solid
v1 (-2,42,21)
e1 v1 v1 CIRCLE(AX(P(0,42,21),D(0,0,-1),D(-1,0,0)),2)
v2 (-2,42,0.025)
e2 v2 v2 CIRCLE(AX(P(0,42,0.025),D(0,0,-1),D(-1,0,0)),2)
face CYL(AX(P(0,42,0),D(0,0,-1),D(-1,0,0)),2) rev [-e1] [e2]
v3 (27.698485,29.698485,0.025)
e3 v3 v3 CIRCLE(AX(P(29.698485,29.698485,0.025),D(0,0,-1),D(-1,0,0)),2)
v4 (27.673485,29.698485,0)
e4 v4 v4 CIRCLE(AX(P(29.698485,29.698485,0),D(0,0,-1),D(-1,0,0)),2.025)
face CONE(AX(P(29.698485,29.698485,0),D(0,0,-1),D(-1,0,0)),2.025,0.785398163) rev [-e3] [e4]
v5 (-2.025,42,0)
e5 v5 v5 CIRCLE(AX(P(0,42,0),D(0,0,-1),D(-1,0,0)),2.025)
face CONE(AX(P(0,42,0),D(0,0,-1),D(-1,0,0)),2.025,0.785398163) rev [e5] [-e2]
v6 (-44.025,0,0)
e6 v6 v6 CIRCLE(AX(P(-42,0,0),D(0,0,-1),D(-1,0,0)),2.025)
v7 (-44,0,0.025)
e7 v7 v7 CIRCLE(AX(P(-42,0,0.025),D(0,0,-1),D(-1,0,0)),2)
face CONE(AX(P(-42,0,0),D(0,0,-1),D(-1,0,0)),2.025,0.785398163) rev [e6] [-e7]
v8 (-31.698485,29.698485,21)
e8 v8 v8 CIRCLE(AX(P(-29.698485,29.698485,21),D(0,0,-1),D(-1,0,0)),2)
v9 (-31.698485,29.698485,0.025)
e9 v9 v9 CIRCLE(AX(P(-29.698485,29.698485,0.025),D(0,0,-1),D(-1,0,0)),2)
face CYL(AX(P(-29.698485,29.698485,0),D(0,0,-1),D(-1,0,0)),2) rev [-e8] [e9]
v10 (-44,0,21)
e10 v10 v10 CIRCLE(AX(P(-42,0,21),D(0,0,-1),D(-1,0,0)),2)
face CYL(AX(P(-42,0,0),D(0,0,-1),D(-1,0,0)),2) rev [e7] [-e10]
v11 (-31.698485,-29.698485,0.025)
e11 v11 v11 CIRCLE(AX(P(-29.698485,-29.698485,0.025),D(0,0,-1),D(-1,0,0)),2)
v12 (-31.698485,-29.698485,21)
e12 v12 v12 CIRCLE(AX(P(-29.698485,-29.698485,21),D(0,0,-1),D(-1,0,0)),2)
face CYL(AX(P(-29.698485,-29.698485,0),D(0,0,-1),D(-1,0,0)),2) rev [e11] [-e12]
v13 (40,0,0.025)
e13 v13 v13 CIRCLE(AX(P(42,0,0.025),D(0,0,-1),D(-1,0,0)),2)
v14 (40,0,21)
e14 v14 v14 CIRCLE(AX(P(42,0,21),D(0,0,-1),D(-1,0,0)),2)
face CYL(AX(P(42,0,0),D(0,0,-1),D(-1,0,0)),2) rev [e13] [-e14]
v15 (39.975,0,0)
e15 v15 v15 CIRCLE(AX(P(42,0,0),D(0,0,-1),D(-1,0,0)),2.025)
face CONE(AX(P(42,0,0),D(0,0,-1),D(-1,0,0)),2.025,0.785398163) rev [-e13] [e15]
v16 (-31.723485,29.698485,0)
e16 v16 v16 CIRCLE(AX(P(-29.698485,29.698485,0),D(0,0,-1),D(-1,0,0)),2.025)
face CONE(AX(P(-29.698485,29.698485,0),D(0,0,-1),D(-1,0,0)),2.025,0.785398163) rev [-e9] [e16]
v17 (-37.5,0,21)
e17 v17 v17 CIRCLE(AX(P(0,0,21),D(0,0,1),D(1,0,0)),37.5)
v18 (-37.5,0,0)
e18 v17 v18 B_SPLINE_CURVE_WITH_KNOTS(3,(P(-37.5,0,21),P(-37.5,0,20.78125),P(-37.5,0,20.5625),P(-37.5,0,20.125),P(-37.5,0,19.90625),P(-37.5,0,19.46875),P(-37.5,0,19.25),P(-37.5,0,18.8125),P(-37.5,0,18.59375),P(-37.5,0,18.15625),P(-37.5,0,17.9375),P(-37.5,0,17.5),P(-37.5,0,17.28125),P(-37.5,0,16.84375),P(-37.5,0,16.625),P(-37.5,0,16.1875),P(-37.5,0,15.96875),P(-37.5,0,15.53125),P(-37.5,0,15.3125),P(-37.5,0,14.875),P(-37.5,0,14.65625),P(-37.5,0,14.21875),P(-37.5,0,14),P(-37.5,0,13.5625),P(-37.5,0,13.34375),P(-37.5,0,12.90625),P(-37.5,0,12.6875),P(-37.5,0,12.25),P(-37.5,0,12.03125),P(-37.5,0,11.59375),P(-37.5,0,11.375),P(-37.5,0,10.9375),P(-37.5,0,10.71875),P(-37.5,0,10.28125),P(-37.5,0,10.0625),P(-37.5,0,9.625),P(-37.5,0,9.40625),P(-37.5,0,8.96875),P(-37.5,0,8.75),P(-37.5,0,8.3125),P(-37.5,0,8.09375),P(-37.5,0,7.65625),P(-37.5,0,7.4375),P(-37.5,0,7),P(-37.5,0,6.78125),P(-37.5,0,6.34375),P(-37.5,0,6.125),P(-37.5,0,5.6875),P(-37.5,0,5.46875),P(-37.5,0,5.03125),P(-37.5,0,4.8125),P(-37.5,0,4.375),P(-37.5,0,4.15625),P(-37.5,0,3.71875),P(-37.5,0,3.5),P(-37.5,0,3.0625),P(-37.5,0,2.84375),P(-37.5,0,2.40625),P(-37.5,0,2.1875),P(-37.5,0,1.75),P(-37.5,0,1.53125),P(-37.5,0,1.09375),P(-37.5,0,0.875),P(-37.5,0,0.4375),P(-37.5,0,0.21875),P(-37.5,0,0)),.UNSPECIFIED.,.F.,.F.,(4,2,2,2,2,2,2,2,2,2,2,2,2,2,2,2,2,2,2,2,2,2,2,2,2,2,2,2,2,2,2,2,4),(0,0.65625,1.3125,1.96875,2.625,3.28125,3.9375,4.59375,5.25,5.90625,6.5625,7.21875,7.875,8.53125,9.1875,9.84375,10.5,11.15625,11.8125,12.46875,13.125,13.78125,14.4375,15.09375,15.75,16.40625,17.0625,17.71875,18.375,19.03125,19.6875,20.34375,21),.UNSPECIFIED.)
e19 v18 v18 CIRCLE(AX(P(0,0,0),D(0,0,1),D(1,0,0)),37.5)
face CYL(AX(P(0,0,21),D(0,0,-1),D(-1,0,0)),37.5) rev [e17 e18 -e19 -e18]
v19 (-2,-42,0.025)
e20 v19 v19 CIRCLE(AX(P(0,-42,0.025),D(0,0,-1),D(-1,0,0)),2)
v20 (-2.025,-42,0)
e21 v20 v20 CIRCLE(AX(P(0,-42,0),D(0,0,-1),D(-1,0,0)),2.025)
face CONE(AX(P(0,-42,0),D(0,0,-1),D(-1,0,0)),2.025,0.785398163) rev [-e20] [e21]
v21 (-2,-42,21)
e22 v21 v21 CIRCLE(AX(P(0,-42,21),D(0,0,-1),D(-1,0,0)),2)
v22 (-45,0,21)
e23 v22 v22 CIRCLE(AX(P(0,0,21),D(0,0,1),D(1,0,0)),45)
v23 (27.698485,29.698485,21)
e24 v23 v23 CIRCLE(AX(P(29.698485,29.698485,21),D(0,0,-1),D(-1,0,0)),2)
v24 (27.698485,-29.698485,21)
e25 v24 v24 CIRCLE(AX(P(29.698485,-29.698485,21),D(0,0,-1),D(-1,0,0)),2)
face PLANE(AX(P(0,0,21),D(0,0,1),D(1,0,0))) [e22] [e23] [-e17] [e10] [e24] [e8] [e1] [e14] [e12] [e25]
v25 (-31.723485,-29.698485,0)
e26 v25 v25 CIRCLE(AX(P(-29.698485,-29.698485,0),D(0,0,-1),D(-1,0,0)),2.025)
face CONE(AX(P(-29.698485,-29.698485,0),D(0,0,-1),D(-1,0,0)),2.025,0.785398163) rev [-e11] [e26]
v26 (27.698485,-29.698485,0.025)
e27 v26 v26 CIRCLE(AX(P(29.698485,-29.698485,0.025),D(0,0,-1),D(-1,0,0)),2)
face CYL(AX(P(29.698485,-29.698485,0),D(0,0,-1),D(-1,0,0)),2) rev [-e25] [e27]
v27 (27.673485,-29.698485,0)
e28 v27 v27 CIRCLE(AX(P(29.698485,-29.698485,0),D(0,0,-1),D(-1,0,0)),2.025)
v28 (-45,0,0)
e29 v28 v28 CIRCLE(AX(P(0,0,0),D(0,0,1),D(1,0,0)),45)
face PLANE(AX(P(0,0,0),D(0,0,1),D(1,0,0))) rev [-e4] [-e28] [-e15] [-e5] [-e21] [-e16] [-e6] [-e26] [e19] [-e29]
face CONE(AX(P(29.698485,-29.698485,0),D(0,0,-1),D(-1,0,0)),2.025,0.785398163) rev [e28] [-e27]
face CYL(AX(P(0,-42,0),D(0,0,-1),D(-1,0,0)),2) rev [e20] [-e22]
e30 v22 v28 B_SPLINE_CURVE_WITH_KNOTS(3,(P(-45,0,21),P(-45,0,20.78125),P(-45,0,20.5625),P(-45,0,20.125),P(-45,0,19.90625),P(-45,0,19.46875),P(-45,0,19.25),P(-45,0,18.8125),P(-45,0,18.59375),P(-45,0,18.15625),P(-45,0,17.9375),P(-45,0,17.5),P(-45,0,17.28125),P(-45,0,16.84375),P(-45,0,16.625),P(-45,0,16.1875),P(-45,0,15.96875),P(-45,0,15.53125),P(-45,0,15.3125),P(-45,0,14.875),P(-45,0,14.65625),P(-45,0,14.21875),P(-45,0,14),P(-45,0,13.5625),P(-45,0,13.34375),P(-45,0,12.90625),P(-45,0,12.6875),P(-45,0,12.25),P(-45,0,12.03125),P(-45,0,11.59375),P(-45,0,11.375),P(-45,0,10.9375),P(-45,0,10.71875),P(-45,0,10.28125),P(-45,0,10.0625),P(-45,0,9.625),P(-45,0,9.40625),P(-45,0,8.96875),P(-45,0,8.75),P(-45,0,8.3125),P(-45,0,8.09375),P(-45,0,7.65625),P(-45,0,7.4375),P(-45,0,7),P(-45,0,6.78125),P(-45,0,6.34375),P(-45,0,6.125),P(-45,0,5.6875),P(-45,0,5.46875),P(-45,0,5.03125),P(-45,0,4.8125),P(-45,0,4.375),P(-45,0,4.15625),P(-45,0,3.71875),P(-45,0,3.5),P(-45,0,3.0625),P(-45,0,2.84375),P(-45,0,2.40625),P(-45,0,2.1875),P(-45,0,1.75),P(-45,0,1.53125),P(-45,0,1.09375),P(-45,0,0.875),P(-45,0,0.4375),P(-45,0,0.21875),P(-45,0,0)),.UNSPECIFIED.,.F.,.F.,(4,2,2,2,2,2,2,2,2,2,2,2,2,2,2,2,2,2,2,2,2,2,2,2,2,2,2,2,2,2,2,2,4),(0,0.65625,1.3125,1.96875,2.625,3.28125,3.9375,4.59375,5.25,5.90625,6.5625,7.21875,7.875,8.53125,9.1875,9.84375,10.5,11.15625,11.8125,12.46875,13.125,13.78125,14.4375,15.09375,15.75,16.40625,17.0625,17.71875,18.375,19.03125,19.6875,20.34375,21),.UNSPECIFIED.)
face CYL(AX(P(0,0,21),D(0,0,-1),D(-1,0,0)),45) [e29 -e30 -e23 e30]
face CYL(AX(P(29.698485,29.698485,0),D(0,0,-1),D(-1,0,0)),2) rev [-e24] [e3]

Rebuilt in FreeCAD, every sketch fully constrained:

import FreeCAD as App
import Part
import Sketcher

V = App.Vector
Q = App.Units.Quantity

doc = App.newDocument("Part")
params = doc.addObject("Spreadsheet::Sheet", "Params")
for row, (alias, value) in enumerate([
    ("sketch1_diameter", "90 mm"),
    ("sketch1_diameter2", "75 mm"),
    ("pad1_length", "21 mm"),
    ("sketch2_diameter", "4 mm"),
    ("hole_diameter", "4 mm"),
    ("hole_csink_diameter", "4.05 mm"),
], start=1):
    params.set(f"A{row}", alias)
    params.set(f"B{row}", "=" + value)
    params.setAlias(f"B{row}", alias)

body = doc.addObject("PartDesign::Body", "Body")

# Sketch on XY plane
sketch1 = doc.addObject("Sketcher::SketchObject", "Sketch")
body.addObject(sketch1)
sketch1.AttachmentSupport = (doc.XY_Plane, [""])
sketch1.MapMode = "FlatFace"
sketch1.addGeometry([
    Part.Circle(V(0, 0, 0), V(0, 0, 1), 45),
    Part.Circle(V(0, 0, 0), V(0, 0, 1), 38),
], False)
sketch1.addConstraint([
    Sketcher.Constraint("Coincident", 0, 3, -1, 1),
    Sketcher.Constraint("Coincident", 1, 3, -1, 1),
    Sketcher.Constraint("Diameter", 0, Q("90 mm")),
    Sketcher.Constraint("Diameter", 1, Q("75 mm")),
])
sketch1.setExpression("Constraints[2]", "Params.sketch1_diameter")
sketch1.setExpression("Constraints[3]", "Params.sketch1_diameter2")
pad1 = doc.addObject("PartDesign::Pad", "Pad")
body.addObject(pad1)
pad1.Profile = sketch1
pad1.setExpression("Length", "Params.pad1_length")

# Sketch on XY plane
sketch2 = doc.addObject("Sketcher::SketchObject", "Sketch001")
body.addObject(sketch2)
sketch2.AttachmentSupport = (doc.XY_Plane, [""])
sketch2.MapMode = "FlatFace"
sketch2.addGeometry([
    Part.Circle(V(-29.7, 29.7, 0), V(0, 0, 1), 2),  # 0
    Part.Circle(V(0, 42, 0), V(0, 0, 1), 2),  # 1
    Part.Circle(V(29.7, 29.7, 0), V(0, 0, 1), 2),  # 2
    Part.Circle(V(42, 0, 0), V(0, 0, 1), 2),  # 3
    Part.Circle(V(29.7, -29.7, 0), V(0, 0, 1), 2),  # 4
    Part.Circle(V(0, -42, 0), V(0, 0, 1), 2),  # 5
    Part.Circle(V(-29.7, -29.7, 0), V(0, 0, 1), 2),  # 6
    Part.Circle(V(-42, 0, 0), V(0, 0, 1), 2),  # 7
], False)
sketch2.addConstraint([
    Sketcher.Constraint("Equal", 0, 1),
    Sketcher.Constraint("Equal", 1, 2),
    Sketcher.Constraint("Equal", 2, 3),
    Sketcher.Constraint("Equal", 3, 4),
    Sketcher.Constraint("Equal", 4, 5),
    Sketcher.Constraint("Equal", 5, 6),
    Sketcher.Constraint("Equal", 6, 7),
    Sketcher.Constraint("Symmetric", 0, 3, 4, 3, -1, 1),
    Sketcher.Constraint("Symmetric", 1, 3, 5, 3, -1, 1),
    Sketcher.Constraint("Symmetric", 2, 3, 6, 3, -1, 1),
    Sketcher.Constraint("Symmetric", 3, 3, 7, 3, -1, 1),
    Sketcher.Constraint("Symmetric", 0, 3, 2, 3, -2),
    Sketcher.Constraint("PointOnObject", 1, 3, -2),
    Sketcher.Constraint("PointOnObject", 3, 3, -1),
    Sketcher.Constraint("Diameter", 0, Q("4 mm")),
    Sketcher.Constraint("DistanceY", -1, 1, 1, 3, Q("42 mm")),
    Sketcher.Constraint("DistanceX", -1, 1, 3, 3, Q("42 mm")),
    Sketcher.Constraint("DistanceX", 0, 3, 2, 3, Q("59.39697 mm")),
    Sketcher.Constraint("DistanceY", 4, 3, 2, 3, Q("59.39697 mm")),
])
sketch2.setExpression("Constraints[14]", "Params.sketch2_diameter")
doc.recompute()
hole = doc.addObject("PartDesign::Hole", "Hole")
body.addObject(hole)
hole.Profile = sketch2
hole.ThreadType = "None"
hole.setExpression("Diameter", "Params.hole_diameter")
hole.DepthType = "ThroughAll"
hole.HoleCutType = "Countersink"
hole.setExpression("HoleCutDiameter", "Params.hole_csink_diameter")
hole.HoleCutCountersinkAngle = 90
hole.Reversed = True

doc.recompute()
